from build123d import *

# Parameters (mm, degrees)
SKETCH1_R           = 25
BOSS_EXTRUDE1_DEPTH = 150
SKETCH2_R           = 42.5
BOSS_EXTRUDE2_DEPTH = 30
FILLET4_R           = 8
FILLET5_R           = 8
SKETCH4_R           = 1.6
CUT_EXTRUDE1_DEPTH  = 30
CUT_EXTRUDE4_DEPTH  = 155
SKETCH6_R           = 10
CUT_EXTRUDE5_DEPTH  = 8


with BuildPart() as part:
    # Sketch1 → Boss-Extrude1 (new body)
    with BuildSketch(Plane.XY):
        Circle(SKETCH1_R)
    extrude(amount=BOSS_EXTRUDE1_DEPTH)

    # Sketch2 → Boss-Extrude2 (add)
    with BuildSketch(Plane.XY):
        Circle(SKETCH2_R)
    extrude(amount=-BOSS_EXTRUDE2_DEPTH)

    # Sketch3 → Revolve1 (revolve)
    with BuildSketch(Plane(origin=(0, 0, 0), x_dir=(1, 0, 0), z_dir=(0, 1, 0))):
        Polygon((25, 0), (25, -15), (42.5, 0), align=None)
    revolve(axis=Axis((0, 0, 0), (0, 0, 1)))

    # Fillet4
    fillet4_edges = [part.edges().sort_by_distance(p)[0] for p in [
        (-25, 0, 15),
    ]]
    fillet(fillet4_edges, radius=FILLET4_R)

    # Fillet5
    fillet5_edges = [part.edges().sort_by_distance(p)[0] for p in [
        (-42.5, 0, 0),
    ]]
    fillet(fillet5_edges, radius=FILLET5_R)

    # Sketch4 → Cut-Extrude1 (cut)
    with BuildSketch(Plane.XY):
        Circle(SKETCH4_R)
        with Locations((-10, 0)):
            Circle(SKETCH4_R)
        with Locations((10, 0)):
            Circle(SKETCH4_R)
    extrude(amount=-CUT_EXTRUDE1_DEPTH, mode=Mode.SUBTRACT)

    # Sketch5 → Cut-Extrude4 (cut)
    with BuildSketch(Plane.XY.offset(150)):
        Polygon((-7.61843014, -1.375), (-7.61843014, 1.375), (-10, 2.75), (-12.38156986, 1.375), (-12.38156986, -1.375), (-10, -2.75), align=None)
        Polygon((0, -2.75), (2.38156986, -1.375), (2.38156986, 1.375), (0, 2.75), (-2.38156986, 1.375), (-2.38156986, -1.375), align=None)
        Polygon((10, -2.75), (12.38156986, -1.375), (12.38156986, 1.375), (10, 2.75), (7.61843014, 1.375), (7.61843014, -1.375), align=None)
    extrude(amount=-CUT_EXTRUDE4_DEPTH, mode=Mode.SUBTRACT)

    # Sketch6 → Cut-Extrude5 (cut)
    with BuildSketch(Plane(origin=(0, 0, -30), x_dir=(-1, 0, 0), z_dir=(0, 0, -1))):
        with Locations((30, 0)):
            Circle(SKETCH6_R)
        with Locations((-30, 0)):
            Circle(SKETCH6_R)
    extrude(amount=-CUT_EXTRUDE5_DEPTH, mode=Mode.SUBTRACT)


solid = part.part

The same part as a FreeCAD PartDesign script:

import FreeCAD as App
import Part
import Sketcher

V = App.Vector
Q = App.Units.Quantity


def edges_at(feature, points):
    """Names of the edges that pass closest to the given points."""
    edges = feature.Shape.Edges
    near = lambda p: min(range(len(edges)), key=lambda i: edges[i].distToShape(Part.Vertex(*p))[0])
    return sorted({f"Edge{near(p) + 1}" for p in points})

doc = App.newDocument("Part")
body = doc.addObject("PartDesign::Body", "Body")

# Sketch on XY plane
sketch1 = body.newObject("Sketcher::SketchObject", "Sketch")
sketch1.AttachmentSupport = (doc.getObject("XY_Plane"), [""])
sketch1.MapMode = "FlatFace"
sketch1.addGeometry(Part.Circle(V(0, 0, 0), V(0, 0, 1), 25), False)
sketch1.addConstraint([
    Sketcher.Constraint("Coincident", 0, 3, -1, 1),
    Sketcher.Constraint("Diameter", 0, Q("50 mm")),
])
pad1 = body.newObject("PartDesign::Pad", "Pad")
pad1.Profile = sketch1
pad1.Length = 150

# Sketch on XY plane
sketch2 = body.newObject("Sketcher::SketchObject", "Sketch001")
sketch2.AttachmentSupport = (doc.getObject("XY_Plane"), [""])
sketch2.MapMode = "FlatFace"
sketch2.addGeometry(Part.Circle(V(0, 0, 0), V(0, 0, 1), 42), False)
sketch2.addConstraint([
    Sketcher.Constraint("Coincident", 0, 3, -1, 1),
    Sketcher.Constraint("Diameter", 0, Q("85 mm")),
])
pad2 = body.newObject("PartDesign::Pad", "Pad001")
pad2.Profile = sketch2
pad2.Length = 30
pad2.Reversed = True

# Sketch on XZ plane
sketch3 = body.newObject("Sketcher::SketchObject", "Sketch002")
sketch3.AttachmentSupport = (doc.getObject("XZ_Plane"), [""])
sketch3.MapMode = "FlatFace"
sketch3.addGeometry([
    Part.LineSegment(V(25, 0, 0), V(25, 15, 0)),
    Part.LineSegment(V(25, 15, 0), V(42, 0, 0)),
    Part.LineSegment(V(42, 0, 0), V(25, 0, 0)),
], False)
sketch3.addConstraint([
    Sketcher.Constraint("Coincident", 0, 2, 1, 1),
    Sketcher.Constraint("Coincident", 1, 2, 2, 1),
    Sketcher.Constraint("Coincident", 2, 2, 0, 1),
    Sketcher.Constraint("Vertical", 0),
    Sketcher.Constraint("Horizontal", 2),
    Sketcher.Constraint("PointOnObject", 1, 2, -1),
    Sketcher.Constraint("DistanceY", 0, 1, 0, 2, Q("15 mm")),
    Sketcher.Constraint("DistanceX", 2, 2, 2, 1, Q("17.5 mm")),
    Sketcher.Constraint("DistanceX", -1, 1, 0, 2, Q("25 mm")),
])
revolution = body.newObject("PartDesign::Revolution", "Revolution")
revolution.Profile = sketch3
revolution.ReferenceAxis = (sketch3, ["V_Axis"])
revolution.Angle = 360
doc.recompute()

fillet = body.newObject("PartDesign::Fillet", "Fillet")
fillet.Base = (revolution, edges_at(revolution, [(-25, 0, 15)]))
fillet.Radius = 8
doc.recompute()

fillet2 = body.newObject("PartDesign::Fillet", "Fillet001")
fillet2.Base = (fillet, edges_at(fillet, [(-42.5, 0, 0)]))
fillet2.Radius = 8

# Sketch on XY plane
sketch4 = body.newObject("Sketcher::SketchObject", "Sketch003")
sketch4.AttachmentSupport = (doc.getObject("XY_Plane"), [""])
sketch4.MapMode = "FlatFace"
sketch4.addGeometry([
    Part.Circle(V(0, 0, 0), V(0, 0, 1), 1.6),
    Part.Circle(V(-10, 0, 0), V(0, 0, 1), 1.6),
    Part.Circle(V(10, 0, 0), V(0, 0, 1), 1.6),
], False)
sketch4.addConstraint([
    Sketcher.Constraint("Coincident", 0, 3, -1, 1),
    Sketcher.Constraint("Equal", 0, 1),
    Sketcher.Constraint("Equal", 1, 2),
    Sketcher.Constraint("Symmetric", 1, 3, 2, 3, -1, 1),
    Sketcher.Constraint("PointOnObject", 1, 3, -1),
    Sketcher.Constraint("Diameter", 0, Q("3.2 mm")),
    Sketcher.Constraint("DistanceX", 1, 3, -1, 1, Q("10 mm")),
])
pocket1 = body.newObject("PartDesign::Pocket", "Pocket")
pocket1.Profile = sketch4
pocket1.Length = 30

# Sketch on XY plane
sketch5 = body.newObject("Sketcher::SketchObject", "Sketch004")
sketch5.AttachmentSupport = (doc.getObject("XY_Plane"), [""])
sketch5.MapMode = "FlatFace"
sketch5.AttachmentOffset = App.Placement(V(0, 0, 150), App.Rotation())
sketch5.addGeometry([
    Part.LineSegment(V(-7.6, -1.4, 0), V(-7.6, 1.4, 0)),  # 0
    Part.LineSegment(V(-7.6, 1.4, 0), V(-10, 2.8, 0)),  # 1
    Part.LineSegment(V(-10, 2.8, 0), V(-12.4, 1.4, 0)),  # 2
    Part.LineSegment(V(-12.4, 1.4, 0), V(-12.4, -1.4, 0)),  # 3
    Part.LineSegment(V(-12.4, -1.4, 0), V(-10, -2.8, 0)),  # 4
    Part.LineSegment(V(-10, -2.8, 0), V(-7.6, -1.4, 0)),  # 5
    Part.LineSegment(V(0, -2.8, 0), V(2.4, -1.4, 0)),  # 6
    Part.LineSegment(V(2.4, -1.4, 0), V(2.4, 1.4, 0)),  # 7
    Part.LineSegment(V(2.4, 1.4, 0), V(0, 2.8, 0)),  # 8
    Part.LineSegment(V(0, 2.8, 0), V(-2.4, 1.4, 0)),  # 9
    Part.LineSegment(V(-2.4, 1.4, 0), V(-2.4, -1.4, 0)),  # 10
    Part.LineSegment(V(-2.4, -1.4, 0), V(0, -2.8, 0)),  # 11
    Part.LineSegment(V(10, -2.8, 0), V(12.4, -1.4, 0)),  # 12
    Part.LineSegment(V(12.4, -1.4, 0), V(12.4, 1.4, 0)),  # 13
    Part.LineSegment(V(12.4, 1.4, 0), V(10, 2.8, 0)),  # 14
    Part.LineSegment(V(10, 2.8, 0), V(7.6, 1.4, 0)),  # 15
    Part.LineSegment(V(7.6, 1.4, 0), V(7.6, -1.4, 0)),  # 16
    Part.LineSegment(V(7.6, -1.4, 0), V(10, -2.8, 0)),  # 17
], False)
sketch5.addConstraint([
    Sketcher.Constraint("Coincident", 0, 2, 1, 1),
    Sketcher.Constraint("Coincident", 1, 2, 2, 1),
    Sketcher.Constraint("Coincident", 2, 2, 3, 1),
    Sketcher.Constraint("Coincident", 3, 2, 4, 1),
    Sketcher.Constraint("Coincident", 4, 2, 5, 1),
    Sketcher.Constraint("Coincident", 5, 2, 0, 1),
    Sketcher.Constraint("Coincident", 6, 2, 7, 1),
    Sketcher.Constraint("Coincident", 7, 2, 8, 1),
    Sketcher.Constraint("Coincident", 8, 2, 9, 1),
    Sketcher.Constraint("Coincident", 9, 2, 10, 1),
    Sketcher.Constraint("Coincident", 10, 2, 11, 1),
    Sketcher.Constraint("Coincident", 11, 2, 6, 1),
    Sketcher.Constraint("Coincident", 12, 2, 13, 1),
    Sketcher.Constraint("Coincident", 13, 2, 14, 1),
    Sketcher.Constraint("Coincident", 14, 2, 15, 1),
    Sketcher.Constraint("Coincident", 15, 2, 16, 1),
    Sketcher.Constraint("Coincident", 16, 2, 17, 1),
    Sketcher.Constraint("Coincident", 17, 2, 12, 1),
    Sketcher.Constraint("Vertical", 0),
    Sketcher.Constraint("Vertical", 3),
    Sketcher.Constraint("Vertical", 7),
    Sketcher.Constraint("Vertical", 10),
    Sketcher.Constraint("Vertical", 13),
    Sketcher.Constraint("Vertical", 16),
    Sketcher.Constraint("Symmetric", 6, 2, 9, 2, -1, 1),
    Sketcher.Constraint("Symmetric", 8, 2, 11, 2, -1, 1),
    Sketcher.Constraint("Symmetric", 2, 2, 12, 2, -1, 1),
    Sketcher.Constraint("Symmetric", 4, 2, 14, 2, -1, 1),
    Sketcher.Constraint("Symmetric", 5, 2, 15, 2, -1, 1),
    Sketcher.Constraint("Symmetric", 1, 2, 17, 2, -1, 1),
    Sketcher.Constraint("Symmetric", 1, 2, 14, 2, -2),
    Sketcher.Constraint("PointOnObject", 8, 2, -2),
    Sketcher.Constraint("Parallel", 1, 4),
    Sketcher.Constraint("Parallel", 2, 5),
    Sketcher.Constraint("Parallel", 5, 6),
    Sketcher.Constraint("Parallel", 4, 8),
    Sketcher.Constraint("Parallel", 8, 11),
    Sketcher.Constraint("Parallel", 11, 14),
    Sketcher.Constraint("Parallel", 14, 17),
    Sketcher.Constraint("Horizontal", 0, 2, 2, 2),
    Sketcher.Constraint("Horizontal", 3, 2, 5, 2),
    Sketcher.Constraint("Horizontal", 5, 2, 6, 2),
    Sketcher.Constraint("Horizontal", 1, 2, 8, 2),
    Sketcher.Constraint("Angle", 1, Q("150 deg")),
    Sketcher.Constraint("DistanceX", 1, 2, -1, 1, Q("10 mm")),
    Sketcher.Constraint("DistanceY", 0, 1, 0, 2, Q("2.75 mm")),
    Sketcher.Constraint("DistanceY", 4, 2, 1, 2, Q("5.5 mm")),
])
pocket2 = body.newObject("PartDesign::Pocket", "Pocket001")
pocket2.Profile = sketch5
pocket2.Length = 155

# Sketch on XY plane
sketch6 = body.newObject("Sketcher::SketchObject", "Sketch005")
sketch6.AttachmentSupport = (doc.getObject("XY_Plane"), [""])
sketch6.MapMode = "FlatFace"
sketch6.AttachmentOffset = App.Placement(V(0, 0, -30), App.Rotation())
sketch6.addGeometry([
    Part.Circle(V(-30, 0, 0), V(0, 0, 1), 10),
    Part.Circle(V(30, 0, 0), V(0, 0, 1), 10),
], False)
sketch6.addConstraint([
    Sketcher.Constraint("Equal", 0, 1),
    Sketcher.Constraint("Symmetric", 0, 3, 1, 3, -1, 1),
    Sketcher.Constraint("PointOnObject", 0, 3, -1),
    Sketcher.Constraint("Diameter", 0, Q("20 mm")),
    Sketcher.Constraint("DistanceX", 0, 3, -1, 1, Q("30 mm")),
])
pocket3 = body.newObject("PartDesign::Pocket", "Pocket002")
pocket3.Profile = sketch6
pocket3.Length = 8
pocket3.Reversed = True

doc.recompute()
